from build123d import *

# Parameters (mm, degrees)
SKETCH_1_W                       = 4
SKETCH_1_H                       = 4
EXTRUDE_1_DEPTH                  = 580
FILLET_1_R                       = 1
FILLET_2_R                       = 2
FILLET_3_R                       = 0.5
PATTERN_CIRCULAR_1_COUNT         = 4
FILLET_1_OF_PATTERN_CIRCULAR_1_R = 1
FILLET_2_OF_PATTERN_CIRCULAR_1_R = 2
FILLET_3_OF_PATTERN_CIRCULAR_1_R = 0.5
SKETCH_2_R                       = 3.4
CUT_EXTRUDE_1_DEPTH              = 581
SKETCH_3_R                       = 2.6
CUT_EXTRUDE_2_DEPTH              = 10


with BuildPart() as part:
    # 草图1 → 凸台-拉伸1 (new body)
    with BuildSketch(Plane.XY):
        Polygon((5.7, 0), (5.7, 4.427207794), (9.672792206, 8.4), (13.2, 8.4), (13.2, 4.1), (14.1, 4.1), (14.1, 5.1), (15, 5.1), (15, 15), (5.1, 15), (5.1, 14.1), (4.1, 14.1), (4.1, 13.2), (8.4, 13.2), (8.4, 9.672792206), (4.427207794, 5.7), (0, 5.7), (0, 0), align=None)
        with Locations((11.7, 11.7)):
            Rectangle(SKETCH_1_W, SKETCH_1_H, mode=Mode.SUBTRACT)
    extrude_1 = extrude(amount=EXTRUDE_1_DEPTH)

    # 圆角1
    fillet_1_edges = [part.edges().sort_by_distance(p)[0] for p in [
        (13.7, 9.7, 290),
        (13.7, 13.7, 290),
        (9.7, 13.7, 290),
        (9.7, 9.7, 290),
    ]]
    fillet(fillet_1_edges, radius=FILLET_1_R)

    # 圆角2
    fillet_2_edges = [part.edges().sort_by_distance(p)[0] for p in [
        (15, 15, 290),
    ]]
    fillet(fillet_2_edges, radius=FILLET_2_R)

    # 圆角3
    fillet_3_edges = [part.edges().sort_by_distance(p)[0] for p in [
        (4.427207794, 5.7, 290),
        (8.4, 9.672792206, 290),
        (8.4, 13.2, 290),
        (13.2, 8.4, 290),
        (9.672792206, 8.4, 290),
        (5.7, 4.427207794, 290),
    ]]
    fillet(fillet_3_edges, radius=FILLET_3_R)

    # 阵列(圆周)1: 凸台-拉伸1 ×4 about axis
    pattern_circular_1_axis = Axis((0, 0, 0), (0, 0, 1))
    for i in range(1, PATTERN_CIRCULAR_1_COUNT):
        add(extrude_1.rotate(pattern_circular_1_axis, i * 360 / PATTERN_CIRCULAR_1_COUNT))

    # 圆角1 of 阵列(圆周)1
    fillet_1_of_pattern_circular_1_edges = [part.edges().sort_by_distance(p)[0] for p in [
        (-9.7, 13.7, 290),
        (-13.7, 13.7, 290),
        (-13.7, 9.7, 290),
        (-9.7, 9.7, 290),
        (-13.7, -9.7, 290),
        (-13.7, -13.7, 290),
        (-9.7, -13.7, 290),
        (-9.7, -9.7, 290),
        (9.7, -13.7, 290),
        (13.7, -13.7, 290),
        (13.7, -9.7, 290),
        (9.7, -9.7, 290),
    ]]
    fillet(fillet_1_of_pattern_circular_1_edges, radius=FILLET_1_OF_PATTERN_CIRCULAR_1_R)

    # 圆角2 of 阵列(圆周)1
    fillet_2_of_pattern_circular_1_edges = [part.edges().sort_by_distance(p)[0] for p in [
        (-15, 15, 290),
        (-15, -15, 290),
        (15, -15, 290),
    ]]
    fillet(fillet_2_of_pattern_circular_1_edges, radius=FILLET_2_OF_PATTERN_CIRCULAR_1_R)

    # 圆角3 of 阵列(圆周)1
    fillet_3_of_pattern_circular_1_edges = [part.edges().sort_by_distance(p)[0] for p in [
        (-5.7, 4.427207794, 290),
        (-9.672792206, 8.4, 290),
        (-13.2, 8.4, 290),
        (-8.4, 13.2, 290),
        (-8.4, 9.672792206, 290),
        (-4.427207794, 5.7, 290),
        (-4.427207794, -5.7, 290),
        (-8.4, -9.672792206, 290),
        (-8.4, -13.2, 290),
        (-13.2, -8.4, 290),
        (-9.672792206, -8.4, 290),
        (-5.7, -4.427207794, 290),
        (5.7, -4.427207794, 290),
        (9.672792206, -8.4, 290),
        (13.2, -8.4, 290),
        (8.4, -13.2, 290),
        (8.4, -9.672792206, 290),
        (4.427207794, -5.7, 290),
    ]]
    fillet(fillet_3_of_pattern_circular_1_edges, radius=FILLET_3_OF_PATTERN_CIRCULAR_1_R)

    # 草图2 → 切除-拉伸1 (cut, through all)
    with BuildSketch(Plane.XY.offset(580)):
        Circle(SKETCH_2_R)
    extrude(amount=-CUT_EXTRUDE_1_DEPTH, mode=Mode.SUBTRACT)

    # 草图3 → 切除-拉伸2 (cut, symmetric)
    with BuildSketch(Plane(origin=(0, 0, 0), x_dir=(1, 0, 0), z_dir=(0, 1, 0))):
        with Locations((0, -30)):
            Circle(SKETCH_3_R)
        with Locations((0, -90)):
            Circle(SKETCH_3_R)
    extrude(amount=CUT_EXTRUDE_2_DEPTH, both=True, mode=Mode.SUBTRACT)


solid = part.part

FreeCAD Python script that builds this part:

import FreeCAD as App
import Part
import Sketcher

V = App.Vector
Q = App.Units.Quantity


def edges_at(feature, points):
    """Names of the edges that pass closest to the given points."""
    edges = feature.Shape.Edges
    near = lambda p: min(range(len(edges)), key=lambda i: edges[i].distToShape(Part.Vertex(*p))[0])
    return sorted({f"Edge{near(p) + 1}" for p in points})

doc = App.newDocument("Part")
body = doc.addObject("PartDesign::Body", "Body")

# Sketch on XY plane
sketch1 = body.newObject("Sketcher::SketchObject", "Sketch")
sketch1.AttachmentSupport = (doc.getObject("XY_Plane"), [""])
sketch1.MapMode = "FlatFace"
sketch1.addGeometry([
    Part.LineSegment(V(5.7, 0, 0), V(5.7, 4.4, 0)),  # 0
    Part.LineSegment(V(5.7, 4.4, 0), V(9.7, 8.4, 0)),  # 1
    Part.LineSegment(V(9.7, 8.4, 0), V(13.2, 8.4, 0)),  # 2
    Part.LineSegment(V(13.2, 8.4, 0), V(13.2, 4.1, 0)),  # 3
    Part.LineSegment(V(13.2, 4.1, 0), V(14.1, 4.1, 0)),  # 4
    Part.LineSegment(V(14.1, 4.1, 0), V(14.1, 5.1, 0)),  # 5
    Part.LineSegment(V(14.1, 5.1, 0), V(15, 5.1, 0)),  # 6
    Part.LineSegment(V(15, 5.1, 0), V(15, 15, 0)),  # 7
    Part.LineSegment(V(15, 15, 0), V(5.1, 15, 0)),  # 8
    Part.LineSegment(V(5.1, 15, 0), V(5.1, 14.1, 0)),  # 9
    Part.LineSegment(V(5.1, 14.1, 0), V(4.1, 14.1, 0)),  # 10
    Part.LineSegment(V(4.1, 14.1, 0), V(4.1, 13.2, 0)),  # 11
    Part.LineSegment(V(4.1, 13.2, 0), V(8.4, 13.2, 0)),  # 12
    Part.LineSegment(V(8.4, 13.2, 0), V(8.4, 9.7, 0)),  # 13
    Part.LineSegment(V(8.4, 9.7, 0), V(4.4, 5.7, 0)),  # 14
    Part.LineSegment(V(4.4, 5.7, 0), V(0, 5.7, 0)),  # 15
    Part.LineSegment(V(0, 5.7, 0), V(0, 0, 0)),  # 16
    Part.LineSegment(V(0, 0, 0), V(5.7, 0, 0)),  # 17
    Part.LineSegment(V(13.7, 9.7, 0), V(9.7, 9.7, 0)),  # 18
    Part.LineSegment(V(9.7, 9.7, 0), V(9.7, 13.7, 0)),  # 19
    Part.LineSegment(V(9.7, 13.7, 0), V(13.7, 13.7, 0)),  # 20
    Part.LineSegment(V(13.7, 13.7, 0), V(13.7, 9.7, 0)),  # 21
], False)
sketch1.addConstraint([
    Sketcher.Constraint("Coincident", 0, 2, 1, 1),
    Sketcher.Constraint("Coincident", 1, 2, 2, 1),
    Sketcher.Constraint("Coincident", 2, 2, 3, 1),
    Sketcher.Constraint("Coincident", 3, 2, 4, 1),
    Sketcher.Constraint("Coincident", 4, 2, 5, 1),
    Sketcher.Constraint("Coincident", 5, 2, 6, 1),
    Sketcher.Constraint("Coincident", 6, 2, 7, 1),
    Sketcher.Constraint("Coincident", 7, 2, 8, 1),
    Sketcher.Constraint("Coincident", 8, 2, 9, 1),
    Sketcher.Constraint("Coincident", 9, 2, 10, 1),
    Sketcher.Constraint("Coincident", 10, 2, 11, 1),
    Sketcher.Constraint("Coincident", 11, 2, 12, 1),
    Sketcher.Constraint("Coincident", 12, 2, 13, 1),
    Sketcher.Constraint("Coincident", 13, 2, 14, 1),
    Sketcher.Constraint("Coincident", 14, 2, 15, 1),
    Sketcher.Constraint("Coincident", 15, 2, 16, 1),
    Sketcher.Constraint("Coincident", 16, 2, 17, 1),
    Sketcher.Constraint("Coincident", 17, 2, 0, 1),
    Sketcher.Constraint("Coincident", 18, 2, 19, 1),
    Sketcher.Constraint("Coincident", 19, 2, 20, 1),
    Sketcher.Constraint("Coincident", 20, 2, 21, 1),
    Sketcher.Constraint("Coincident", 21, 2, 18, 1),
    Sketcher.Constraint("Vertical", 0),
    Sketcher.Constraint("Horizontal", 2),
    Sketcher.Constraint("Vertical", 3),
    Sketcher.Constraint("Horizontal", 4),
    Sketcher.Constraint("Vertical", 5),
    Sketcher.Constraint("Horizontal", 6),
    Sketcher.Constraint("Vertical", 7),
    Sketcher.Constraint("Horizontal", 8),
    Sketcher.Constraint("Vertical", 9),
    Sketcher.Constraint("Horizontal", 10),
    Sketcher.Constraint("Vertical", 11),
    Sketcher.Constraint("Horizontal", 12),
    Sketcher.Constraint("Vertical", 13),
    Sketcher.Constraint("Horizontal", 15),
    Sketcher.Constraint("Vertical", 16),
    Sketcher.Constraint("Horizontal", 17),
    Sketcher.Constraint("Horizontal", 18),
    Sketcher.Constraint("Vertical", 19),
    Sketcher.Constraint("Horizontal", 20),
    Sketcher.Constraint("Vertical", 21),
    Sketcher.Constraint("Coincident", 16, 2, -1, 1),
    Sketcher.Constraint("Parallel", 1, 14),
    Sketcher.Constraint("Equal", 4, 6),
    Sketcher.Constraint("Equal", 15, 0),
    Sketcher.Constraint("Equal", 12, 3),
    Sketcher.Constraint("Equal", 10, 5),
    Sketcher.Constraint("Equal", 8, 7),
    Sketcher.Constraint("Equal", 6, 9),
    Sketcher.Constraint("Equal", 9, 11),
    Sketcher.Constraint("Equal", 2, 13),
    Sketcher.Constraint("Equal", 17, 16),
    Sketcher.Constraint("Equal", 20, 19),
    Sketcher.Constraint("DistanceX", 10, 2, 10, 1, 1.0),
    Sketcher.Constraint("DistanceX", 18, 2, 18, 1, 4.0),
    Sketcher.Constraint("Angle", 1, Q("45 deg")),
    Sketcher.Constraint("DistanceX", 4, 1, 4, 2, 0.9),
    Sketcher.Constraint("DistanceX", 8, 2, 8, 1, 9.9),
    Sketcher.Constraint("DistanceX", 12, 1, 12, 2, 4.3),
    Sketcher.Constraint("DistanceX", 17, 1, 17, 2, 5.7),
    Sketcher.Constraint("DistanceX", -1, 1, 6, 2, 15.0),
    Sketcher.Constraint("DistanceX", -1, 1, 18, 2, 9.7),
    Sketcher.Constraint("DistanceY", -1, 1, 18, 2, 9.7),
    Sketcher.Constraint("DistanceX", 2, 1, 2, 2, 3.527208),
])
pad1 = body.newObject("PartDesign::Pad", "Pad")
pad1.Profile = sketch1
pad1.Length = 580
doc.recompute()

fillet = body.newObject("PartDesign::Fillet", "Fillet")
fillet.Base = (pad1, edges_at(pad1, [
    (13.7, 9.7, 290),
    (13.7, 13.7, 290),
    (9.7, 13.7, 290),
    (9.7, 9.7, 290),
]))
fillet.Radius = 1
doc.recompute()

fillet2 = body.newObject("PartDesign::Fillet", "Fillet001")
fillet2.Base = (fillet, edges_at(fillet, [(15, 15, 290)]))
fillet2.Radius = 2
doc.recompute()

fillet3 = body.newObject("PartDesign::Fillet", "Fillet002")
fillet3.Base = (fillet2, edges_at(fillet2, [
    (4.427, 5.7, 290),
    (8.4, 9.673, 290),
    (8.4, 13.2, 290),
    (13.2, 8.4, 290),
    (9.673, 8.4, 290),
    (5.7, 4.427, 290),
]))
fillet3.Radius = 0.5
doc.recompute()

polarpattern = body.newObject("PartDesign::PolarPattern", "PolarPattern")
polarpattern.Originals = [pad1]
polarpattern.Axis = (doc.getObject("Z_Axis"), [""])
polarpattern.Angle = 360
polarpattern.Occurrences = 4
body.Tip = polarpattern
doc.recompute()

fillet4 = body.newObject("PartDesign::Fillet", "Fillet003")
fillet4.Base = (polarpattern, edges_at(polarpattern, [
    (-9.7, 13.7, 290),
    (-13.7, 13.7, 290),
    (-13.7, 9.7, 290),
    (-9.7, 9.7, 290),
    (-13.7, -9.7, 290),
    (-13.7, -13.7, 290),
    (-9.7, -13.7, 290),
    (-9.7, -9.7, 290),
    (9.7, -13.7, 290),
    (13.7, -13.7, 290),
    (13.7, -9.7, 290),
    (9.7, -9.7, 290),
]))
fillet4.Radius = 1
doc.recompute()

fillet5 = body.newObject("PartDesign::Fillet", "Fillet004")
fillet5.Base = (fillet4, edges_at(fillet4, [(-15, 15, 290), (-15, -15, 290), (15, -15, 290)]))
fillet5.Radius = 2
doc.recompute()

fillet6 = body.newObject("PartDesign::Fillet", "Fillet005")
fillet6.Base = (fillet5, edges_at(fillet5, [
    (-5.7, 4.427, 290),
    (-9.673, 8.4, 290),
    (-13.2, 8.4, 290),
    (-8.4, 13.2, 290),
    (-8.4, 9.673, 290),
    (-4.427, 5.7, 290),
    (-4.427, -5.7, 290),
    (-8.4, -9.673, 290),
    (-8.4, -13.2, 290),
    (-13.2, -8.4, 290),
    (-9.673, -8.4, 290),
    (-5.7, -4.427, 290),
    (5.7, -4.427, 290),
    (9.673, -8.4, 290),
    (13.2, -8.4, 290),
    (8.4, -13.2, 290),
    (8.4, -9.673, 290),
    (4.427, -5.7, 290),
]))
fillet6.Radius = 0.5

# Sketch on XY plane
sketch2 = body.newObject("Sketcher::SketchObject", "Sketch001")
sketch2.AttachmentSupport = (doc.getObject("XY_Plane"), [""])
sketch2.MapMode = "FlatFace"
sketch2.AttachmentOffset = App.Placement(V(0, 0, 580), App.Rotation())
sketch2.addGeometry(Part.Circle(V(0, 0, 0), V(0, 0, 1), 3.4), False)
sketch2.addConstraint([
    Sketcher.Constraint("Coincident", 0, 3, -1, 1),
    Sketcher.Constraint("Diameter", 0, 6.8),
])
pocket1 = body.newObject("PartDesign::Pocket", "Pocket")
pocket1.Profile = sketch2
pocket1.Type = "ThroughAll"

# Sketch on XZ plane
sketch3 = body.newObject("Sketcher::SketchObject", "Sketch002")
sketch3.AttachmentSupport = (doc.getObject("XZ_Plane"), [""])
sketch3.MapMode = "FlatFace"
sketch3.addGeometry([
    Part.Circle(V(0, 30, 0), V(0, 0, 1), 2.6),
    Part.Circle(V(0, 90, 0), V(0, 0, 1), 2.6),
], False)
sketch3.addConstraint([
    Sketcher.Constraint("Equal", 0, 1),
    Sketcher.Constraint("PointOnObject", 0, 3, -2),
    Sketcher.Constraint("PointOnObject", 1, 3, -2),
    Sketcher.Constraint("Diameter", 0, 5.2),
    Sketcher.Constraint("DistanceY", -1, 1, 0, 3, 30.0),
    Sketcher.Constraint("DistanceY", -1, 1, 1, 3, 90.0),
])
pocket2 = body.newObject("PartDesign::Pocket", "Pocket001")
pocket2.Profile = sketch3
pocket2.Length = 20
pocket2.Midplane = True

doc.recompute()
